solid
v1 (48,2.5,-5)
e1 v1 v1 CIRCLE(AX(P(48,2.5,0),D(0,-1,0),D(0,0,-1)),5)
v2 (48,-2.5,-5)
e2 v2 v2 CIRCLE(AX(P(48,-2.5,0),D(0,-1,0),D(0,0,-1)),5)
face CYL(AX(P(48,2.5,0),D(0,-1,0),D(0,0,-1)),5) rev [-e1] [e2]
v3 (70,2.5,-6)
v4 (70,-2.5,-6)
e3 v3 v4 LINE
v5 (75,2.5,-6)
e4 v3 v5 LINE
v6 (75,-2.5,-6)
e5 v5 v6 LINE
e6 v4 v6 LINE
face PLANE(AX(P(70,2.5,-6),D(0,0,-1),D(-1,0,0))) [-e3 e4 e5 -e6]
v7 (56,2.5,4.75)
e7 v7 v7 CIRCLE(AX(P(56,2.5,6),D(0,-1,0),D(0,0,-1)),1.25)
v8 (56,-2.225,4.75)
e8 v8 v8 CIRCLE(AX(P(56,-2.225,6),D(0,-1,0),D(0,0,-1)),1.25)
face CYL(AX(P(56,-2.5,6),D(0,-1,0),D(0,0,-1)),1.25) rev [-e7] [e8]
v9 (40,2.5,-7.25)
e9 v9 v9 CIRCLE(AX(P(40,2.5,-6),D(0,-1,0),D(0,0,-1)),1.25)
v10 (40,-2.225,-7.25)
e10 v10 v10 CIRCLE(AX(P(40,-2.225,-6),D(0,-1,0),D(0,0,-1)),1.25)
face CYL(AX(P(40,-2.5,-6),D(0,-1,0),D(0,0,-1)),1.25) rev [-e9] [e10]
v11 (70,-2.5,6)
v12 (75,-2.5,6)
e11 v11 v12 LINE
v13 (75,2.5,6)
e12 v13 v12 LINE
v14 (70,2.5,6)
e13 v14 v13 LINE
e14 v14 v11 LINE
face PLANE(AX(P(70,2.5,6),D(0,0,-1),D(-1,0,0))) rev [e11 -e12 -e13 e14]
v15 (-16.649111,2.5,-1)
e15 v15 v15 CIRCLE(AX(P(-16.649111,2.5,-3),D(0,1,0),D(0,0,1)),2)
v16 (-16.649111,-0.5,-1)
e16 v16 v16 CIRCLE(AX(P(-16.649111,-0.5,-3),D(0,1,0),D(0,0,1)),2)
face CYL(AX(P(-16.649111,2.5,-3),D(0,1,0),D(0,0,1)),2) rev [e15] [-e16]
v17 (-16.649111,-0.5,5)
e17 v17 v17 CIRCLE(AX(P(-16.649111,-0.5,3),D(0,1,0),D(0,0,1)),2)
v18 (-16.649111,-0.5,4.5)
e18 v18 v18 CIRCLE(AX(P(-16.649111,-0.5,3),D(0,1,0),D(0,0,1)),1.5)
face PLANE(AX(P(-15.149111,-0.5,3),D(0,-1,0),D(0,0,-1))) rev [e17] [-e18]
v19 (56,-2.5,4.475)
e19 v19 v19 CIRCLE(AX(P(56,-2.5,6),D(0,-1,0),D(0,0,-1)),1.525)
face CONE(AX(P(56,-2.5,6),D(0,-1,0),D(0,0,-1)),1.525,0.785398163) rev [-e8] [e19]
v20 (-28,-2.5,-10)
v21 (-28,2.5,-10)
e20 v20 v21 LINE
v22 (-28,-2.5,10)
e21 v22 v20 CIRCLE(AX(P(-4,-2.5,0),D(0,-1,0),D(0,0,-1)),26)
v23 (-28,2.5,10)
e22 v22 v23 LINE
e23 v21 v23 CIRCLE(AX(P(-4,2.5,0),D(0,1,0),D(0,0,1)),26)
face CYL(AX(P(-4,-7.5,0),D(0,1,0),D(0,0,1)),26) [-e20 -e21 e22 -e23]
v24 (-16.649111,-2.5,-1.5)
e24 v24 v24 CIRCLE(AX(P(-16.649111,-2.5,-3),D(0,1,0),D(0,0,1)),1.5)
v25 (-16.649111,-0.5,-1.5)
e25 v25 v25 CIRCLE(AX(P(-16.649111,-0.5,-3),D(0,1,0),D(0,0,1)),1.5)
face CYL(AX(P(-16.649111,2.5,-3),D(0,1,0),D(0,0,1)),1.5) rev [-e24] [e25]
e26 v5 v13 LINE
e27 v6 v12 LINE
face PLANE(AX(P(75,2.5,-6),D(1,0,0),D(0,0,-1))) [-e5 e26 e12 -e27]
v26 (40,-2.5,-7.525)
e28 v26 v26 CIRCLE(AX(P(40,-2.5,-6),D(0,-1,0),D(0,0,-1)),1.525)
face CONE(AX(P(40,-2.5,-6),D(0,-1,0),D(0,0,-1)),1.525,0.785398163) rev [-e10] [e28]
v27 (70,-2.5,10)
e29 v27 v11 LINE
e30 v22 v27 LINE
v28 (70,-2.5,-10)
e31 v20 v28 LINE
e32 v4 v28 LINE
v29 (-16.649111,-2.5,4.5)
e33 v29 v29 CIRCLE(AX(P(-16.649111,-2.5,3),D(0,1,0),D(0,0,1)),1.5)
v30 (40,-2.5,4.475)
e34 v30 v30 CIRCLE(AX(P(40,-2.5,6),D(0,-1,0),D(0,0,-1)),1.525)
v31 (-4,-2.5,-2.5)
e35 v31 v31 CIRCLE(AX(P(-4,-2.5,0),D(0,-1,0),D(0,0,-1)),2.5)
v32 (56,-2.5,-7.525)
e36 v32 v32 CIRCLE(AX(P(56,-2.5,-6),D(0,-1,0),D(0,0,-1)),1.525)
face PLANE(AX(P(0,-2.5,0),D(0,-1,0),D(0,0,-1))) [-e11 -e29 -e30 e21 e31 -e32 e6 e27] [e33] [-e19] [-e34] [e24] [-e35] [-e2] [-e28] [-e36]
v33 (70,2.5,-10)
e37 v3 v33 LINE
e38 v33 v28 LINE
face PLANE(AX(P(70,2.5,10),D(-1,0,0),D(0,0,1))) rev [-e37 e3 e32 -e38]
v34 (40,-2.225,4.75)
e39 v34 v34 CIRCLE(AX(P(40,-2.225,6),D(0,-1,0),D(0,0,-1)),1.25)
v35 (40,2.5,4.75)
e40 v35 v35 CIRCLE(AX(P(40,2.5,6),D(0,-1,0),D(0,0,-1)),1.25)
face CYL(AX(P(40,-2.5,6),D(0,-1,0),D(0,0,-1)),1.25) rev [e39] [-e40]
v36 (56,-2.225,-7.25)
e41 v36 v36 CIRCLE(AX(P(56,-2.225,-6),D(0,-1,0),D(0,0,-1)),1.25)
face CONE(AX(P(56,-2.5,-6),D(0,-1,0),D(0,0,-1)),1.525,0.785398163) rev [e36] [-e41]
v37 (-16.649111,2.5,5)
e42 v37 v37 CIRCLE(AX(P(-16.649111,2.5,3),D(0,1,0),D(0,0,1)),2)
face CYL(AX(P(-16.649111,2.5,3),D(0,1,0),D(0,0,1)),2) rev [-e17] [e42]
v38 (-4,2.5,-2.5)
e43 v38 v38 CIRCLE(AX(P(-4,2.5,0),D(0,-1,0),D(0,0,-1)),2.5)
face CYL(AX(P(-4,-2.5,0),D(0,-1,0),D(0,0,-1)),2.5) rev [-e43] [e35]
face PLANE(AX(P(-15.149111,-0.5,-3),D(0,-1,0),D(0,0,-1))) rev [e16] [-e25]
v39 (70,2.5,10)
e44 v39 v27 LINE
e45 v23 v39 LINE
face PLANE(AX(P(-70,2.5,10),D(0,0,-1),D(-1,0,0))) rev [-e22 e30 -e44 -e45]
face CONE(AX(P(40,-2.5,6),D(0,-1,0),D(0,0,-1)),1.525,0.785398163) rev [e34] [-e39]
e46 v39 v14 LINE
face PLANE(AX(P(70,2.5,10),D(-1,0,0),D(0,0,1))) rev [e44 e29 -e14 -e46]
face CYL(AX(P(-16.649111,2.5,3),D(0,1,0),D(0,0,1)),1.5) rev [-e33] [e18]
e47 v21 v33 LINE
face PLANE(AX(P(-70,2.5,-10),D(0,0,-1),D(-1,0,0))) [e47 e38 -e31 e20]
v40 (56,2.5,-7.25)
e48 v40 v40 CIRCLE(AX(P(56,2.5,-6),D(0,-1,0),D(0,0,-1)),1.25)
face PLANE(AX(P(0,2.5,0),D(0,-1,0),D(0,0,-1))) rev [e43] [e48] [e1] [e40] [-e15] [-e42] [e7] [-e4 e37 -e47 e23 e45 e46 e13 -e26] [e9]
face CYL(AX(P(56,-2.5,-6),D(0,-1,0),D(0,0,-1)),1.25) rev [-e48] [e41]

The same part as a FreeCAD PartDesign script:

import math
import FreeCAD as App
import Part
import Sketcher
from FreeCAD import Vector
Q = App.Units.Quantity


def add_polygon(sketch, points):
    """Adds a closed chain of lines whose ends are joined by coincident constraints."""
    first, n = sketch.GeometryCount, len(points)
    for a, b in zip(points, points[1:] + points[:1]):
        sketch.addGeometry(Part.LineSegment(App.Vector(*a, 0), App.Vector(*b, 0)), False)
    for i in range(n):
        sketch.addConstraint(Sketcher.Constraint("Coincident", first + i, 2, first + (i + 1) % n, 1))

doc = App.newDocument("Part")
body = doc.addObject("PartDesign::Body", "Body")

# Sketch on XZ plane
sketch1 = body.newObject("Sketcher::SketchObject", "Sketch")
sketch1.AttachmentSupport = (doc.getObject("XZ_Plane"), [""])
sketch1.MapMode = "FlatFace"
add_polygon(sketch1, [(-70, -10), (-70, 10), (70, 10), (70, 6), (75, 6), (75, -6), (70, -6), (70, -10)])  # lines 0-7
sketch1.addConstraint(Sketcher.Constraint("Vertical", 0))
sketch1.addConstraint(Sketcher.Constraint("Horizontal", 1))
sketch1.addConstraint(Sketcher.Constraint("Vertical", 2))
sketch1.addConstraint(Sketcher.Constraint("Horizontal", 3))
sketch1.addConstraint(Sketcher.Constraint("Vertical", 4))
sketch1.addConstraint(Sketcher.Constraint("Horizontal", 5))
sketch1.addConstraint(Sketcher.Constraint("Vertical", 6))
sketch1.addConstraint(Sketcher.Constraint("Horizontal", 7))
sketch1.addConstraint(Sketcher.Constraint("Symmetric", 0, 2, 6, 2, -1, 1))
sketch1.addConstraint(Sketcher.Constraint("Symmetric", 2, 2, 5, 2, -1))
sketch1.addConstraint(Sketcher.Constraint("DistanceX", 1, 1, 1, 2, Q("140 mm")))
sketch1.addConstraint(Sketcher.Constraint("DistanceX", 3, 1, 3, 2, Q("5 mm")))
sketch1.addConstraint(Sketcher.Constraint("DistanceY", 0, 1, 0, 2, Q("20 mm")))
sketch1.addConstraint(Sketcher.Constraint("DistanceY", 2, 2, 2, 1, Q("4 mm")))
pad1 = body.newObject("PartDesign::Pad", "Pad")
pad1.Profile = sketch1
pad1.Length = 5
pad1.Midplane = True

# Sketch on XZ plane
sketch2 = body.newObject("Sketcher::SketchObject", "Sketch001")
sketch2.AttachmentSupport = (doc.getObject("XZ_Plane"), [""])
sketch2.MapMode = "FlatFace"
sketch2.AttachmentOffset = App.Placement(Vector(0, 0, 2.5), App.Rotation())
sketch2.addGeometry(Part.Circle(Vector(48, 0, 0), Vector(0, 0, 1), 5), False)
sketch2.addConstraint(Sketcher.Constraint("PointOnObject", 0, 3, -1))
sketch2.addConstraint(Sketcher.Constraint("Diameter", 0, Q("10 mm")))
sketch2.addConstraint(Sketcher.Constraint("DistanceX", -1, 1, 0, 3, Q("48 mm")))
pocket1 = body.newObject("PartDesign::Pocket", "Pocket")
pocket1.Profile = sketch2
pocket1.Length = 5

# Sketch on XZ plane
sketch3 = body.newObject("Sketcher::SketchObject", "Sketch002")
sketch3.AttachmentSupport = (doc.getObject("XZ_Plane"), [""])
sketch3.MapMode = "FlatFace"
sketch3.AttachmentOffset = App.Placement(Vector(0, 0, 2.5), App.Rotation())
sketch3.addGeometry(Part.Circle(Vector(56, -6, 0), Vector(0, 0, 1), 1.2), False)
sketch3.addGeometry(Part.Circle(Vector(40, -6, 0), Vector(0, 0, 1), 1.2), False)
sketch3.addGeometry(Part.Circle(Vector(40, 6, 0), Vector(0, 0, 1), 1.2), False)
sketch3.addGeometry(Part.Circle(Vector(56, 6, 0), Vector(0, 0, 1), 1.2), False)
sketch3.addConstraint(Sketcher.Constraint("Equal", 0, 1))
sketch3.addConstraint(Sketcher.Constraint("Equal", 1, 2))
sketch3.addConstraint(Sketcher.Constraint("Equal", 2, 3))
sketch3.addConstraint(Sketcher.Constraint("Symmetric", 1, 3, 2, 3, -1))
sketch3.addConstraint(Sketcher.Constraint("Symmetric", 0, 3, 3, 3, -1))
sketch3.addConstraint(Sketcher.Constraint("Horizontal", 0, 3, 1, 3))
sketch3.addConstraint(Sketcher.Constraint("Diameter", 0, Q("2.5 mm")))
sketch3.addConstraint(Sketcher.Constraint("DistanceX", -1, 1, 0, 3, Q("56 mm")))
sketch3.addConstraint(Sketcher.Constraint("DistanceY", 0, 3, -1, 1, Q("6 mm")))
sketch3.addConstraint(Sketcher.Constraint("DistanceX", -1, 1, 1, 3, Q("40 mm")))
doc.recompute()
hole = body.newObject("PartDesign::Hole", "Hole")
hole.Profile = sketch3
hole.ThreadType = "None"
hole.Diameter = 2.5
hole.DepthType = "ThroughAll"
hole.HoleCutType = "Countersink"
hole.HoleCutDiameter = 3.05
hole.HoleCutCountersinkAngle = 90

# Sketch on XZ plane
sketch4 = body.newObject("Sketcher::SketchObject", "Sketch003")
sketch4.AttachmentSupport = (doc.getObject("XZ_Plane"), [""])
sketch4.MapMode = "FlatFace"
sketch4.AttachmentOffset = App.Placement(Vector(0, 0, 2.5), App.Rotation())
sketch4.addGeometry(Part.Circle(Vector(-4, 0, 0), Vector(0, 0, 1), 2.5), False)
sketch4.addConstraint(Sketcher.Constraint("PointOnObject", 0, 3, -1))
sketch4.addConstraint(Sketcher.Constraint("Diameter", 0, Q("5 mm")))
sketch4.addConstraint(Sketcher.Constraint("DistanceX", 0, 3, -1, 1, Q("4 mm")))
doc.recompute()
hole2 = body.newObject("PartDesign::Hole", "Hole001")
hole2.Profile = sketch4
hole2.ThreadType = "None"
hole2.Diameter = 5
hole2.DepthType = "ThroughAll"

# Sketch on XZ plane
sketch5 = body.newObject("Sketcher::SketchObject", "Sketch004")
sketch5.AttachmentSupport = (doc.getObject("XZ_Plane"), [""])
sketch5.MapMode = "FlatFace"
sketch5.AttachmentOffset = App.Placement(Vector(0, 0, -2.5), App.Rotation())
sketch5.addGeometry(Part.Circle(Vector(-16.6, 3, 0), Vector(0, 0, 1), 1.5), False)
sketch5.addGeometry(Part.Circle(Vector(-16.6, -3, 0), Vector(0, 0, 1), 1.5), False)
sketch5.addConstraint(Sketcher.Constraint("Equal", 0, 1))
sketch5.addConstraint(Sketcher.Constraint("Symmetric", 0, 3, 1, 3, -1))
sketch5.addConstraint(Sketcher.Constraint("Diameter", 0, Q("3 mm")))
sketch5.addConstraint(Sketcher.Constraint("DistanceY", -1, 1, 0, 3, Q("3 mm")))
sketch5.addConstraint(Sketcher.Constraint("DistanceX", 0, 3, -1, 1, Q("16.649111 mm")))
doc.recompute()
hole3 = body.newObject("PartDesign::Hole", "Hole002")
hole3.Profile = sketch5
hole3.ThreadType = "None"
hole3.Diameter = 3
hole3.DepthType = "ThroughAll"
hole3.HoleCutType = "Counterbore"
hole3.HoleCutDiameter = 4
hole3.HoleCutDepth = 3
hole3.Reversed = True

# Sketch on XZ plane
sketch6 = body.newObject("Sketcher::SketchObject", "Sketch005")
sketch6.AttachmentSupport = (doc.getObject("XZ_Plane"), [""])
sketch6.MapMode = "FlatFace"
sketch6.AttachmentOffset = App.Placement(Vector(0, 0, -2.5), App.Rotation())
sketch6.addGeometry(Part.ArcOfCircle(Part.Circle(Vector(-4, 0, 0), Vector(0, 0, 1), 26), math.radians(157), math.radians(203)), False)
sketch6.addGeometry(Part.LineSegment(Vector(-28, -10, 0), Vector(-70, -10, 0)), False)
sketch6.addGeometry(Part.LineSegment(Vector(-70, -10, 0), Vector(-70, 10, 0)), False)
sketch6.addGeometry(Part.LineSegment(Vector(-70, 10, 0), Vector(-28, 10, 0)), False)
sketch6.addConstraint(Sketcher.Constraint("Coincident", 0, 2, 1, 1))
sketch6.addConstraint(Sketcher.Constraint("Coincident", 1, 2, 2, 1))
sketch6.addConstraint(Sketcher.Constraint("Coincident", 2, 2, 3, 1))
sketch6.addConstraint(Sketcher.Constraint("Coincident", 3, 2, 0, 1))
sketch6.addConstraint(Sketcher.Constraint("Horizontal", 1))
sketch6.addConstraint(Sketcher.Constraint("Vertical", 2))
sketch6.addConstraint(Sketcher.Constraint("Horizontal", 3))
sketch6.addConstraint(Sketcher.Constraint("Symmetric", 0, 2, 3, 2, -1))
sketch6.addConstraint(Sketcher.Constraint("Radius", 0, Q("26 mm")))
sketch6.addConstraint(Sketcher.Constraint("DistanceX", 1, 2, 1, 1, Q("42 mm")))
sketch6.addConstraint(Sketcher.Constraint("DistanceY", 2, 1, 2, 2, Q("20 mm")))
sketch6.addConstraint(Sketcher.Constraint("DistanceX", 0, 3, -1, 1, Q("4 mm")))
pocket2 = body.newObject("PartDesign::Pocket", "Pocket001")
pocket2.Profile = sketch6
pocket2.Length = 10
pocket2.Reversed = True

doc.recompute()
